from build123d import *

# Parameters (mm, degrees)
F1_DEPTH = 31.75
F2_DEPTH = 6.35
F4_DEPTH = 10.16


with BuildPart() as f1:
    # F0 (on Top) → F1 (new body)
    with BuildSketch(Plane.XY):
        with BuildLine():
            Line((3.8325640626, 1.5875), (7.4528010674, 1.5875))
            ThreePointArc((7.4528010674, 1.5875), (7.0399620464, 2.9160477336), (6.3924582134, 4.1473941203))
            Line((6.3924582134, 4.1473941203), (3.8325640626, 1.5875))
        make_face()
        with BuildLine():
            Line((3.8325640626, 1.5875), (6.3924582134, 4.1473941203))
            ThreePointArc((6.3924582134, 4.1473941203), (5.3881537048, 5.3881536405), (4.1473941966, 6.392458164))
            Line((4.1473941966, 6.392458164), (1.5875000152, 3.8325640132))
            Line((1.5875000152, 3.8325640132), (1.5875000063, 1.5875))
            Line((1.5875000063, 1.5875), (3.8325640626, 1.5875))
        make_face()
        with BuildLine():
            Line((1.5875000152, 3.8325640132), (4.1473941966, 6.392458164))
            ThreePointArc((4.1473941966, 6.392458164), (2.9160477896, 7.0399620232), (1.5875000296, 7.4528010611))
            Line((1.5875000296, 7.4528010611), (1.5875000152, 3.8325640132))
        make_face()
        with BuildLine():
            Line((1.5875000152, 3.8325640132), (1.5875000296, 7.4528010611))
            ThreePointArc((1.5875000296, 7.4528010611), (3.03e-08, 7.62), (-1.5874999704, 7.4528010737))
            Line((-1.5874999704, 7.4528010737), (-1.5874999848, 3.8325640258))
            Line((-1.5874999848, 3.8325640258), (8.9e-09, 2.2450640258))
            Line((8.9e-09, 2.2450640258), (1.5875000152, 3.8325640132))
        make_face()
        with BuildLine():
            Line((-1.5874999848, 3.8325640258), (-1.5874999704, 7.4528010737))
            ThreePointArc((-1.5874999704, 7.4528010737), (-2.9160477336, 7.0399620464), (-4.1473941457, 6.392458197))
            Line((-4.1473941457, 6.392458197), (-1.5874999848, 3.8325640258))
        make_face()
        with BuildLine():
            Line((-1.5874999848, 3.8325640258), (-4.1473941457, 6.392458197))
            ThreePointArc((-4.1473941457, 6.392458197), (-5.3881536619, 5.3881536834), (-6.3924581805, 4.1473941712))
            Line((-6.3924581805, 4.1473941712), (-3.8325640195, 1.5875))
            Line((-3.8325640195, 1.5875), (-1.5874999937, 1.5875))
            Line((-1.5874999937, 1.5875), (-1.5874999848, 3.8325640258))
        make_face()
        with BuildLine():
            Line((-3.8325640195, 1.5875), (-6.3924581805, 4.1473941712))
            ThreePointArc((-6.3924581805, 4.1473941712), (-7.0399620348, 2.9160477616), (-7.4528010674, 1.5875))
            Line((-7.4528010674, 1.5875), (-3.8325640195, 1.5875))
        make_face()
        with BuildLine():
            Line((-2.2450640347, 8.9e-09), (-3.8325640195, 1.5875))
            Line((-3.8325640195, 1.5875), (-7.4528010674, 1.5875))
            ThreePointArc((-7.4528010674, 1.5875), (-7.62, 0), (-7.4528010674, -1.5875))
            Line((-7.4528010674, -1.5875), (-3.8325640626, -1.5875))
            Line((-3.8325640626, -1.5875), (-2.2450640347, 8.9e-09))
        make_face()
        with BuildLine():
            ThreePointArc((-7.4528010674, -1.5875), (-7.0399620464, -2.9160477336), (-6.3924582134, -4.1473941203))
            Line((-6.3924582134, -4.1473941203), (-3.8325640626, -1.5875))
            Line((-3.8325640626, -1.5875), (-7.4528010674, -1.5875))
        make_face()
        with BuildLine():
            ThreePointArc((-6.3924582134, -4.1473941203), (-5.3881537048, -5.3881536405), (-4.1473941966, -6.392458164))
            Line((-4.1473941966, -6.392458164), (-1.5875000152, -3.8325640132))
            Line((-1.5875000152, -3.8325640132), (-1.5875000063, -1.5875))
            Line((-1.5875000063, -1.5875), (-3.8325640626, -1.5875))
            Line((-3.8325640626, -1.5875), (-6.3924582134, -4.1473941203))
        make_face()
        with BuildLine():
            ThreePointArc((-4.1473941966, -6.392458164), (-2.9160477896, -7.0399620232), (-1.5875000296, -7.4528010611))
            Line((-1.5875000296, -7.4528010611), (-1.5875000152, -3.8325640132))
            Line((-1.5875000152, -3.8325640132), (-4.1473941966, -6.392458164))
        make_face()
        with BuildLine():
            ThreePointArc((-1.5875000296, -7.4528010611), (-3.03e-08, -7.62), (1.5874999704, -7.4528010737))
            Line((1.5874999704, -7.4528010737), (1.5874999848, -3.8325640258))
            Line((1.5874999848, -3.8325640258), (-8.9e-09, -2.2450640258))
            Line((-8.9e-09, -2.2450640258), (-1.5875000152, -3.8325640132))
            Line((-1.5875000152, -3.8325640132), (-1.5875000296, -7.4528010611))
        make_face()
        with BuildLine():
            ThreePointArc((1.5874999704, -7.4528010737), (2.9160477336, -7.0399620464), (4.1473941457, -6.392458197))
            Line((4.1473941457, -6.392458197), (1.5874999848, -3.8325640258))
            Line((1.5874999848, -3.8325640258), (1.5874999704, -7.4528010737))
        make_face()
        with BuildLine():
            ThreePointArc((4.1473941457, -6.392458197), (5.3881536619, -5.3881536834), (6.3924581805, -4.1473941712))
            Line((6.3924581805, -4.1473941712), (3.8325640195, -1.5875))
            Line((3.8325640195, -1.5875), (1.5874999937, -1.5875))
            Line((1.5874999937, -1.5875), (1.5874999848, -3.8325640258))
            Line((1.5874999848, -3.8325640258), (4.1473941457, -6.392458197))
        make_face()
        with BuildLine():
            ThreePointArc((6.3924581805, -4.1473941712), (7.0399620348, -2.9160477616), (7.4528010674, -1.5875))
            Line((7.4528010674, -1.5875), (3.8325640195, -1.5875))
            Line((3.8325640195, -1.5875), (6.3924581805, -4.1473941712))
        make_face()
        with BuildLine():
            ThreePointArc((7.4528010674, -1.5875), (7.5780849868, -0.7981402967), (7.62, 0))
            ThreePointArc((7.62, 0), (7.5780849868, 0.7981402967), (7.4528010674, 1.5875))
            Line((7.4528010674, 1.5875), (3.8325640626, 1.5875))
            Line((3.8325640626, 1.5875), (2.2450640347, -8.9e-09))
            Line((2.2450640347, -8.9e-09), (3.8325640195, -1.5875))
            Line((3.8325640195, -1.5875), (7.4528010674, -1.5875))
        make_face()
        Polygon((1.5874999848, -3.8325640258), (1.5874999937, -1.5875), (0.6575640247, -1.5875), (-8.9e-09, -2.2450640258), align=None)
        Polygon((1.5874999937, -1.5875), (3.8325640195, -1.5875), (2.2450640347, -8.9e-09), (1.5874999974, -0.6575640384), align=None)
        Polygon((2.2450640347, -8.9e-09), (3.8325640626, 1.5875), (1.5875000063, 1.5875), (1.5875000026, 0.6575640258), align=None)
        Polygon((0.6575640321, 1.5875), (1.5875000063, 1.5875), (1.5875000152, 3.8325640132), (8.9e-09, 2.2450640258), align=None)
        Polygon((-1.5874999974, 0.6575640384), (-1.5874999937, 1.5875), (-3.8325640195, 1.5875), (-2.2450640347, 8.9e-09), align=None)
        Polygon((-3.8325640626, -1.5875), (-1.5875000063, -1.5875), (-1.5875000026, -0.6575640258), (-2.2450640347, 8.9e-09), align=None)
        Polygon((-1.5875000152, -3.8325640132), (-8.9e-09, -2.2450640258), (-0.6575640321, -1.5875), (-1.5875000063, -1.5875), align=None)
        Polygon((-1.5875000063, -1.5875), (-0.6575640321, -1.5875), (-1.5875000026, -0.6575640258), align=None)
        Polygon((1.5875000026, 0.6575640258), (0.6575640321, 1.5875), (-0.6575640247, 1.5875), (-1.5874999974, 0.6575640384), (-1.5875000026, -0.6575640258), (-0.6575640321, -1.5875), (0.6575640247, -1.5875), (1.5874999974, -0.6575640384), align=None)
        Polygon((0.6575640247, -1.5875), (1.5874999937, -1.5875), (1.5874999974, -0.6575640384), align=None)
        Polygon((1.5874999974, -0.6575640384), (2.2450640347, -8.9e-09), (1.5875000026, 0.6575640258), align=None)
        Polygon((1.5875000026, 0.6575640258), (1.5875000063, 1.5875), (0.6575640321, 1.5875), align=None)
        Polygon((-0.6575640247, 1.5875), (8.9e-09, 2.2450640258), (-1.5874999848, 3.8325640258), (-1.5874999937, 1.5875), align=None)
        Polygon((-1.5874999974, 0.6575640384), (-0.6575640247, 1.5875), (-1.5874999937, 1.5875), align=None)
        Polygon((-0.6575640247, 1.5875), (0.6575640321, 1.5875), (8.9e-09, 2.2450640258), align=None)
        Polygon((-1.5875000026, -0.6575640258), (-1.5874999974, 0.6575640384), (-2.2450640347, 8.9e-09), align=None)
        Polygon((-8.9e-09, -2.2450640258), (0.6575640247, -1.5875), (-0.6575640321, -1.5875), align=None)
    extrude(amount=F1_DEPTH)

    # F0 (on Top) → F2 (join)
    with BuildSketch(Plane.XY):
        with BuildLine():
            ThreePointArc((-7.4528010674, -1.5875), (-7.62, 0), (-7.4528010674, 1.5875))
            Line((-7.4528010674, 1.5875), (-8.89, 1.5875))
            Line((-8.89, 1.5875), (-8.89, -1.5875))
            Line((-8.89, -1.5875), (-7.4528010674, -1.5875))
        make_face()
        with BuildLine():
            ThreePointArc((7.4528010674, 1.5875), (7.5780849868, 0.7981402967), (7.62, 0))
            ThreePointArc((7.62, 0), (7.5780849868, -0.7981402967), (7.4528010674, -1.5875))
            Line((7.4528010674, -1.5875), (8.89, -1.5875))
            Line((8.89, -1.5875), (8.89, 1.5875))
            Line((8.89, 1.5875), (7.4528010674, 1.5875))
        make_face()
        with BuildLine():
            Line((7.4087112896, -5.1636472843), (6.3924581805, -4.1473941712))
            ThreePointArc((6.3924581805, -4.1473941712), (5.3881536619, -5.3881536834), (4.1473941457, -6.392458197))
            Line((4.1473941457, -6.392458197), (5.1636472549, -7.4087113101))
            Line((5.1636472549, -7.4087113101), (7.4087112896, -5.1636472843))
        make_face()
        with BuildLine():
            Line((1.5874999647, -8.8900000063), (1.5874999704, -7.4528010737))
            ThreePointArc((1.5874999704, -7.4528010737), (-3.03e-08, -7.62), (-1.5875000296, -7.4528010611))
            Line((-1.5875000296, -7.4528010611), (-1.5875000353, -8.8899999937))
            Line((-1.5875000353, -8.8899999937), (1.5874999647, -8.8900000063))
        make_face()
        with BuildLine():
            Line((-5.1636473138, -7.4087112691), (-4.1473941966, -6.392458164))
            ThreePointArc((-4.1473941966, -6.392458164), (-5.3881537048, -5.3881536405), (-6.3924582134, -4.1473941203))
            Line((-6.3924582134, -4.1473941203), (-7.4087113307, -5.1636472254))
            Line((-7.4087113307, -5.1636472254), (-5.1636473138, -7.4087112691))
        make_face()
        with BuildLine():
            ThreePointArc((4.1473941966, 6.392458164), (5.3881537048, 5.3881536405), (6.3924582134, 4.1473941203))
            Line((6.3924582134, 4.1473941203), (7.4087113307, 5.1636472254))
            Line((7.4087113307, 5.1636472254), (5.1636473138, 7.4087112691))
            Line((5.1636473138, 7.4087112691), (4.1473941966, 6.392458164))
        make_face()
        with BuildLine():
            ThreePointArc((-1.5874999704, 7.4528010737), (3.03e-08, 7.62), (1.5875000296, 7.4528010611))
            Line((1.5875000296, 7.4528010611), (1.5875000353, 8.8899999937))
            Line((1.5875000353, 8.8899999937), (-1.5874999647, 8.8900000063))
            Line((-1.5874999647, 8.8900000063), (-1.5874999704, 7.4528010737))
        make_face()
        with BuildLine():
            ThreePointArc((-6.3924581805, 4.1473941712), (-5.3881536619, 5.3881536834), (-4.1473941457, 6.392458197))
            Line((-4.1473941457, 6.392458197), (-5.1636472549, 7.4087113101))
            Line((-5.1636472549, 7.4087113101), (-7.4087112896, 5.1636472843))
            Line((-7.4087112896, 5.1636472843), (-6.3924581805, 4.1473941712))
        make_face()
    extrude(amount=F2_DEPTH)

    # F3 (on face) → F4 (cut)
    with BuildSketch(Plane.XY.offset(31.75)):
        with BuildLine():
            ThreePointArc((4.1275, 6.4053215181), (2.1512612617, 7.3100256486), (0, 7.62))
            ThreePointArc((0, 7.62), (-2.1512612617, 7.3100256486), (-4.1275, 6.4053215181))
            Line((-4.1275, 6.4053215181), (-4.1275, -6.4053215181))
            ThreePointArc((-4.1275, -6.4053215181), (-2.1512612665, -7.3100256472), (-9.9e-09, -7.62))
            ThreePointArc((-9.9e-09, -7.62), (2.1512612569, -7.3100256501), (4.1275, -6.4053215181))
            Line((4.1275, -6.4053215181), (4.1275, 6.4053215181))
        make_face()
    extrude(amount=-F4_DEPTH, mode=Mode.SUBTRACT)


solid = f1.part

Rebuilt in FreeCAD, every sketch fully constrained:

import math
import FreeCAD as App
import Part
import Sketcher
Q = App.Units.Quantity

doc = App.newDocument("Part")
body = doc.addObject("PartDesign::Body", "Body")

# Sketch on XY plane
sketch1 = body.newObject("Sketcher::SketchObject", "Sketch")
sketch1.AttachmentSupport = (doc.getObject("XY_Plane"), [""])
sketch1.MapMode = "FlatFace"
sketch1.addGeometry([
    Part.ArcOfCircle(Part.Circle(App.Vector(0, 0, 0), App.Vector(0, 0, 1), 7.6), math.radians(33), math.radians(57)),  # 0
    Part.ArcOfCircle(Part.Circle(App.Vector(0, 0, 0), App.Vector(0, 0, 1), 7.6), math.radians(57), math.radians(78)),  # 1
    Part.ArcOfCircle(Part.Circle(App.Vector(0, 0, 0), App.Vector(0, 0, 1), 7.6), math.radians(78), math.radians(102)),  # 2
    Part.ArcOfCircle(Part.Circle(App.Vector(0, 0, 0), App.Vector(0, 0, 1), 7.6), math.radians(102), math.radians(123)),  # 3
    Part.ArcOfCircle(Part.Circle(App.Vector(0, 0, 0), App.Vector(0, 0, 1), 7.6), math.radians(123), math.radians(147)),  # 4
    Part.ArcOfCircle(Part.Circle(App.Vector(0, 0, 0), App.Vector(0, 0, 1), 7.6), math.radians(147), math.radians(168)),  # 5
    Part.ArcOfCircle(Part.Circle(App.Vector(0, 0, 0), App.Vector(0, 0, 1), 7.6), math.radians(168), math.radians(192)),  # 6
    Part.ArcOfCircle(Part.Circle(App.Vector(0, 0, 0), App.Vector(0, 0, 1), 7.6), math.radians(-168), math.radians(-147)),  # 7
    Part.ArcOfCircle(Part.Circle(App.Vector(0, 0, 0), App.Vector(0, 0, 1), 7.6), math.radians(-147), math.radians(-123)),  # 8
    Part.ArcOfCircle(Part.Circle(App.Vector(0, 0, 0), App.Vector(0, 0, 1), 7.6), math.radians(-123), math.radians(-102)),  # 9
    Part.ArcOfCircle(Part.Circle(App.Vector(0, 0, 0), App.Vector(0, 0, 1), 7.6), math.radians(-102), math.radians(-78)),  # 10
    Part.ArcOfCircle(Part.Circle(App.Vector(0, 0, 0), App.Vector(0, 0, 1), 7.6), math.radians(-78), math.radians(-57)),  # 11
    Part.ArcOfCircle(Part.Circle(App.Vector(0, 0, 0), App.Vector(0, 0, 1), 7.6), math.radians(-57), math.radians(-33)),  # 12
    Part.ArcOfCircle(Part.Circle(App.Vector(0, 0, 0), App.Vector(0, 0, 1), 7.6), math.radians(-33), math.radians(-12)),  # 13
    Part.ArcOfCircle(Part.Circle(App.Vector(0, 0, 0), App.Vector(0, 0, 1), 7.6), math.radians(-12.02), math.radians(0)),  # 14
    Part.ArcOfCircle(Part.Circle(App.Vector(0, 0, 0), App.Vector(0, 0, 1), 7.6), math.radians(0), math.radians(12.02)),  # 15
    Part.ArcOfCircle(Part.Circle(App.Vector(0, 0, 0), App.Vector(0, 0, 1), 7.6), math.radians(12), math.radians(33)),  # 16
], False)
sketch1.addConstraint([
    Sketcher.Constraint("Tangent", 0, 2, 1, 1),
    Sketcher.Constraint("Tangent", 1, 2, 2, 1),
    Sketcher.Constraint("Tangent", 2, 2, 3, 1),
    Sketcher.Constraint("Tangent", 3, 2, 4, 1),
    Sketcher.Constraint("Tangent", 4, 2, 5, 1),
    Sketcher.Constraint("Tangent", 5, 2, 6, 1),
    Sketcher.Constraint("Tangent", 6, 2, 7, 1),
    Sketcher.Constraint("Tangent", 7, 2, 8, 1),
    Sketcher.Constraint("Tangent", 8, 2, 9, 1),
    Sketcher.Constraint("Tangent", 9, 2, 10, 1),
    Sketcher.Constraint("Tangent", 10, 2, 11, 1),
    Sketcher.Constraint("Tangent", 11, 2, 12, 1),
    Sketcher.Constraint("Tangent", 12, 2, 13, 1),
    Sketcher.Constraint("Tangent", 13, 2, 14, 1),
    Sketcher.Constraint("Tangent", 14, 2, 15, 1),
    Sketcher.Constraint("Tangent", 15, 2, 16, 1),
    Sketcher.Constraint("Tangent", 16, 2, 0, 1),
    Sketcher.Constraint("Coincident", 0, 3, -1, 1),
    Sketcher.Constraint("Coincident", 2, 3, -1, 1),
    Sketcher.Constraint("Coincident", 4, 3, -1, 1),
    Sketcher.Constraint("Coincident", 6, 3, -1, 1),
    Sketcher.Constraint("Coincident", 8, 3, -1, 1),
    Sketcher.Constraint("Coincident", 10, 3, -1, 1),
    Sketcher.Constraint("Coincident", 12, 3, -1, 1),
    Sketcher.Constraint("Coincident", 14, 3, -1, 1),
    Sketcher.Constraint("PointOnObject", 14, 2, -1),
    Sketcher.Constraint("Horizontal", 1, 2, 2, 2),
    Sketcher.Constraint("Horizontal", 0, 2, 3, 2),
    Sketcher.Constraint("Horizontal", 9, 2, 10, 2),
    Sketcher.Constraint("Horizontal", 8, 2, 11, 2),
    Sketcher.Constraint("Horizontal", 7, 2, 12, 2),
    Sketcher.Constraint("Horizontal", 6, 2, 13, 2),
    Sketcher.Constraint("Horizontal", 5, 2, 15, 2),
    Sketcher.Constraint("Horizontal", 4, 2, 16, 2),
    Sketcher.Constraint("Vertical", 5, 2, 6, 2),
    Sketcher.Constraint("Vertical", 4, 2, 7, 2),
    Sketcher.Constraint("Vertical", 3, 2, 8, 2),
    Sketcher.Constraint("Vertical", 2, 2, 9, 2),
    Sketcher.Constraint("Radius", 0, Q("0.3 in")),
    Sketcher.Constraint("DistanceX", -1, 1, 1, 2, Q("0.0625 in")),
    Sketcher.Constraint("DistanceY", -1, 1, 5, 2, Q("0.0625 in")),
    Sketcher.Constraint("DistanceY", -1, 1, 0, 2, 6.392458),
    Sketcher.Constraint("DistanceX", 4, 2, -1, 1, 6.392458),
])
pad1 = body.newObject("PartDesign::Pad", "Pad")
pad1.Profile = sketch1
pad1.Length = Q("1.25 in")

# Sketch on XY plane
sketch2 = body.newObject("Sketcher::SketchObject", "Sketch001")
sketch2.AttachmentSupport = (doc.getObject("XY_Plane"), [""])
sketch2.MapMode = "FlatFace"
sketch2.addGeometry([
    Part.ArcOfCircle(Part.Circle(App.Vector(0, 0, 0), App.Vector(0, 0, 1), 7.6), math.radians(168), math.radians(192)),  # 0
    Part.LineSegment(App.Vector(-7.5, 1.6, 0), App.Vector(-8.9, 1.6, 0)),  # 1
    Part.LineSegment(App.Vector(-8.9, 1.6, 0), App.Vector(-8.9, -1.6, 0)),  # 2
    Part.LineSegment(App.Vector(-8.9, -1.6, 0), App.Vector(-7.5, -1.6, 0)),  # 3
    Part.ArcOfCircle(Part.Circle(App.Vector(0, 0, 0), App.Vector(0, 0, 1), 7.6), math.radians(0), math.radians(12.02)),  # 4
    Part.ArcOfCircle(Part.Circle(App.Vector(0, 0, 0), App.Vector(0, 0, 1), 7.6), math.radians(-12.02), math.radians(0)),  # 5
    Part.LineSegment(App.Vector(7.5, -1.6, 0), App.Vector(8.9, -1.6, 0)),  # 6
    Part.LineSegment(App.Vector(8.9, -1.6, 0), App.Vector(8.9, 1.6, 0)),  # 7
    Part.LineSegment(App.Vector(8.9, 1.6, 0), App.Vector(7.5, 1.6, 0)),  # 8
    Part.LineSegment(App.Vector(7.4, -5.2, 0), App.Vector(6.4, -4.1, 0)),  # 9
    Part.ArcOfCircle(Part.Circle(App.Vector(0, 0, 0), App.Vector(0, 0, 1), 7.6), math.radians(-57), math.radians(-33)),  # 10
    Part.LineSegment(App.Vector(4.1, -6.4, 0), App.Vector(5.2, -7.4, 0)),  # 11
    Part.LineSegment(App.Vector(5.2, -7.4, 0), App.Vector(7.4, -5.2, 0)),  # 12
    Part.LineSegment(App.Vector(1.6, -8.9, 0), App.Vector(1.6, -7.5, 0)),  # 13
    Part.ArcOfCircle(Part.Circle(App.Vector(0, 0, 0), App.Vector(0, 0, 1), 7.6), math.radians(-102), math.radians(-78)),  # 14
    Part.LineSegment(App.Vector(-1.6, -7.5, 0), App.Vector(-1.6, -8.9, 0)),  # 15
    Part.LineSegment(App.Vector(-1.6, -8.9, 0), App.Vector(1.6, -8.9, 0)),  # 16
    Part.LineSegment(App.Vector(-5.2, -7.4, 0), App.Vector(-4.1, -6.4, 0)),  # 17
    Part.ArcOfCircle(Part.Circle(App.Vector(0, 0, 0), App.Vector(0, 0, 1), 7.6), math.radians(-147), math.radians(-123)),  # 18
    Part.LineSegment(App.Vector(-6.4, -4.1, 0), App.Vector(-7.4, -5.2, 0)),  # 19
    Part.LineSegment(App.Vector(-7.4, -5.2, 0), App.Vector(-5.2, -7.4, 0)),  # 20
    Part.ArcOfCircle(Part.Circle(App.Vector(0, 0, 0), App.Vector(0, 0, 1), 7.6), math.radians(33), math.radians(57)),  # 21
    Part.LineSegment(App.Vector(6.4, 4.1, 0), App.Vector(7.4, 5.2, 0)),  # 22
    Part.LineSegment(App.Vector(7.4, 5.2, 0), App.Vector(5.2, 7.4, 0)),  # 23
    Part.LineSegment(App.Vector(5.2, 7.4, 0), App.Vector(4.1, 6.4, 0)),  # 24
    Part.ArcOfCircle(Part.Circle(App.Vector(0, 0, 0), App.Vector(0, 0, 1), 7.6), math.radians(78), math.radians(102)),  # 25
    Part.LineSegment(App.Vector(1.6, 7.5, 0), App.Vector(1.6, 8.9, 0)),  # 26
    Part.LineSegment(App.Vector(1.6, 8.9, 0), App.Vector(-1.6, 8.9, 0)),  # 27
    Part.LineSegment(App.Vector(-1.6, 8.9, 0), App.Vector(-1.6, 7.5, 0)),  # 28
    Part.ArcOfCircle(Part.Circle(App.Vector(0, 0, 0), App.Vector(0, 0, 1), 7.6), math.radians(123), math.radians(147)),  # 29
    Part.LineSegment(App.Vector(-4.1, 6.4, 0), App.Vector(-5.2, 7.4, 0)),  # 30
    Part.LineSegment(App.Vector(-5.2, 7.4, 0), App.Vector(-7.4, 5.2, 0)),  # 31
    Part.LineSegment(App.Vector(-7.4, 5.2, 0), App.Vector(-6.4, 4.1, 0)),  # 32
], False)
sketch2.addConstraint([
    Sketcher.Constraint("Coincident", 0, 1, 1, 1),
    Sketcher.Constraint("Coincident", 1, 2, 2, 1),
    Sketcher.Constraint("Coincident", 2, 2, 3, 1),
    Sketcher.Constraint("Coincident", 3, 2, 0, 2),
    Sketcher.Constraint("Tangent", 4, 1, 5, 2),
    Sketcher.Constraint("Coincident", 5, 1, 6, 1),
    Sketcher.Constraint("Coincident", 6, 2, 7, 1),
    Sketcher.Constraint("Coincident", 7, 2, 8, 1),
    Sketcher.Constraint("Coincident", 8, 2, 4, 2),
    Sketcher.Constraint("Coincident", 9, 2, 10, 2),
    Sketcher.Constraint("Coincident", 10, 1, 11, 1),
    Sketcher.Constraint("Coincident", 11, 2, 12, 1),
    Sketcher.Constraint("Coincident", 12, 2, 9, 1),
    Sketcher.Constraint("Coincident", 13, 2, 14, 2),
    Sketcher.Constraint("Coincident", 14, 1, 15, 1),
    Sketcher.Constraint("Coincident", 15, 2, 16, 1),
    Sketcher.Constraint("Coincident", 16, 2, 13, 1),
    Sketcher.Constraint("Coincident", 17, 2, 18, 2),
    Sketcher.Constraint("Coincident", 18, 1, 19, 1),
    Sketcher.Constraint("Coincident", 19, 2, 20, 1),
    Sketcher.Constraint("Coincident", 20, 2, 17, 1),
    Sketcher.Constraint("Coincident", 21, 1, 22, 1),
    Sketcher.Constraint("Coincident", 22, 2, 23, 1),
    Sketcher.Constraint("Coincident", 23, 2, 24, 1),
    Sketcher.Constraint("Coincident", 24, 2, 21, 2),
    Sketcher.Constraint("Coincident", 25, 1, 26, 1),
    Sketcher.Constraint("Coincident", 26, 2, 27, 1),
    Sketcher.Constraint("Coincident", 27, 2, 28, 1),
    Sketcher.Constraint("Coincident", 28, 2, 25, 2),
    Sketcher.Constraint("Coincident", 29, 1, 30, 1),
    Sketcher.Constraint("Coincident", 30, 2, 31, 1),
    Sketcher.Constraint("Coincident", 31, 2, 32, 1),
    Sketcher.Constraint("Coincident", 32, 2, 29, 2),
    Sketcher.Constraint("Horizontal", 1),
    Sketcher.Constraint("Vertical", 2),
    Sketcher.Constraint("Horizontal", 3),
    Sketcher.Constraint("Horizontal", 6),
    Sketcher.Constraint("Vertical", 7),
    Sketcher.Constraint("Horizontal", 8),
    Sketcher.Constraint("Vertical", 13),
    Sketcher.Constraint("Vertical", 15),
    Sketcher.Constraint("Horizontal", 16),
    Sketcher.Constraint("Vertical", 26),
    Sketcher.Constraint("Horizontal", 27),
    Sketcher.Constraint("Vertical", 28),
    Sketcher.Constraint("Coincident", 0, 3, -1, 1),
    Sketcher.Constraint("Coincident", 4, 3, -1, 1),
    Sketcher.Constraint("Coincident", 10, 3, -1, 1),
    Sketcher.Constraint("Coincident", 14, 3, -1, 1),
    Sketcher.Constraint("Coincident", 18, 3, -1, 1),
    Sketcher.Constraint("Coincident", 21, 3, -1, 1),
    Sketcher.Constraint("Coincident", 25, 3, -1, 1),
    Sketcher.Constraint("Coincident", 29, 3, -1, 1),
    Sketcher.Constraint("Equal", 0, 4),
    Sketcher.Constraint("Equal", 4, 5),
    Sketcher.Constraint("Equal", 5, 10),
    Sketcher.Constraint("Equal", 10, 14),
    Sketcher.Constraint("Equal", 14, 18),
    Sketcher.Constraint("Equal", 18, 21),
    Sketcher.Constraint("Equal", 21, 25),
    Sketcher.Constraint("Equal", 25, 29),
    Sketcher.Constraint("Symmetric", 1, 2, 6, 2, -1, 1),
    Sketcher.Constraint("Symmetric", 19, 2, 22, 2, -1, 1),
    Sketcher.Constraint("Symmetric", 20, 2, 23, 2, -1, 1),
    Sketcher.Constraint("Symmetric", 15, 2, 26, 2, -1, 1),
    Sketcher.Constraint("Symmetric", 11, 2, 30, 2, -1, 1),
    Sketcher.Constraint("Symmetric", 12, 2, 31, 2, -1, 1),
    Sketcher.Constraint("Symmetric", 12, 2, 19, 2, -2),
    Sketcher.Constraint("Symmetric", 11, 2, 20, 2, -2),
    Sketcher.Constraint("PointOnObject", 4, 1, -1),
    Sketcher.Constraint("Parallel", 9, 11),
    Sketcher.Constraint("Perpendicular", 11, 12),
    Sketcher.Constraint("Parallel", 12, 17),
    Sketcher.Constraint("Parallel", 17, 19),
    Sketcher.Constraint("Perpendicular", 19, 20),
    Sketcher.Constraint("Perpendicular", 20, 22),
    Sketcher.Constraint("Perpendicular", 23, 24),
    Sketcher.Constraint("Perpendicular", 24, 30),
    Sketcher.Constraint("Perpendicular", 31, 32),
    Sketcher.Constraint("Horizontal", 3, 2, 5, 1),
    Sketcher.Constraint("Horizontal", 1, 2, 7, 2),
    Sketcher.Constraint("Horizontal", 13, 2, 14, 1),
    Sketcher.Constraint("Horizontal", 25, 1, 28, 2),
    Sketcher.Constraint("Equal", 27, 2),
    Sketcher.Constraint("Equal", 8, 13),
    Sketcher.Constraint("Equal", 9, 11),
    Sketcher.Constraint("Radius", 0, Q("0.3 in")),
    Sketcher.Constraint("DistanceX", 16, 1, 16, 2, Q("0.125 in")),
    Sketcher.Constraint("DistanceX", 1, 2, -1, 1, Q("0.35 in")),
    Sketcher.Constraint("Distance", 12, Q("0.125 in")),
    Sketcher.Constraint("Distance", 9, 1.437199),
])
pad2 = body.newObject("PartDesign::Pad", "Pad001")
pad2.Profile = sketch2
pad2.Length = Q("0.25 in")

# Sketch on XY plane
sketch3 = body.newObject("Sketcher::SketchObject", "Sketch002")
sketch3.AttachmentSupport = (doc.getObject("XY_Plane"), [""])
sketch3.MapMode = "FlatFace"
sketch3.AttachmentOffset = App.Placement(App.Vector(0, 0, 1.25 * 25.4), App.Rotation())
sketch3.addGeometry([
    Part.ArcOfCircle(Part.Circle(App.Vector(0, 0, 0), App.Vector(0, 0, 1), 7.6), math.radians(57), math.radians(90)),  # 0
    Part.ArcOfCircle(Part.Circle(App.Vector(0, 0, 0), App.Vector(0, 0, 1), 7.6), math.radians(90), math.radians(123)),  # 1
    Part.LineSegment(App.Vector(-4.1, 6.4, 0), App.Vector(-4.1, -6.4, 0)),  # 2
    Part.ArcOfCircle(Part.Circle(App.Vector(0, 0, 0), App.Vector(0, 0, 1), 7.6), math.radians(-123), math.radians(-90)),  # 3
    Part.ArcOfCircle(Part.Circle(App.Vector(0, 0, 0), App.Vector(0, 0, 1), 7.6), math.radians(-90), math.radians(-57)),  # 4
    Part.LineSegment(App.Vector(4.1, -6.4, 0), App.Vector(4.1, 6.4, 0)),  # 5
], False)
sketch3.addConstraint([
    Sketcher.Constraint("Tangent", 0, 2, 1, 1),
    Sketcher.Constraint("Coincident", 1, 2, 2, 1),
    Sketcher.Constraint("Coincident", 2, 2, 3, 1),
    Sketcher.Constraint("Tangent", 3, 2, 4, 1),
    Sketcher.Constraint("Coincident", 4, 2, 5, 1),
    Sketcher.Constraint("Coincident", 5, 2, 0, 1),
    Sketcher.Constraint("Vertical", 2),
    Sketcher.Constraint("Vertical", 5),
    Sketcher.Constraint("Coincident", 0, 3, -1, 1),
    Sketcher.Constraint("Coincident", 3, 3, -1, 1),
    Sketcher.Constraint("Equal", 0, 1),
    Sketcher.Constraint("Equal", 1, 3),
    Sketcher.Constraint("Equal", 3, 4),
    Sketcher.Constraint("PointOnObject", 0, 2, -2),
    Sketcher.Constraint("PointOnObject", 3, 2, -2),
    Sketcher.Constraint("Horizontal", 2, 2, 4, 2),
    Sketcher.Constraint("Radius", 0, Q("0.3 in")),
    Sketcher.Constraint("DistanceX", 1, 2, -1, 1, Q("0.1625 in")),
])
pocket1 = body.newObject("PartDesign::Pocket", "Pocket")
pocket1.Profile = sketch3
pocket1.Length = Q("0.4 in")

doc.recompute()
